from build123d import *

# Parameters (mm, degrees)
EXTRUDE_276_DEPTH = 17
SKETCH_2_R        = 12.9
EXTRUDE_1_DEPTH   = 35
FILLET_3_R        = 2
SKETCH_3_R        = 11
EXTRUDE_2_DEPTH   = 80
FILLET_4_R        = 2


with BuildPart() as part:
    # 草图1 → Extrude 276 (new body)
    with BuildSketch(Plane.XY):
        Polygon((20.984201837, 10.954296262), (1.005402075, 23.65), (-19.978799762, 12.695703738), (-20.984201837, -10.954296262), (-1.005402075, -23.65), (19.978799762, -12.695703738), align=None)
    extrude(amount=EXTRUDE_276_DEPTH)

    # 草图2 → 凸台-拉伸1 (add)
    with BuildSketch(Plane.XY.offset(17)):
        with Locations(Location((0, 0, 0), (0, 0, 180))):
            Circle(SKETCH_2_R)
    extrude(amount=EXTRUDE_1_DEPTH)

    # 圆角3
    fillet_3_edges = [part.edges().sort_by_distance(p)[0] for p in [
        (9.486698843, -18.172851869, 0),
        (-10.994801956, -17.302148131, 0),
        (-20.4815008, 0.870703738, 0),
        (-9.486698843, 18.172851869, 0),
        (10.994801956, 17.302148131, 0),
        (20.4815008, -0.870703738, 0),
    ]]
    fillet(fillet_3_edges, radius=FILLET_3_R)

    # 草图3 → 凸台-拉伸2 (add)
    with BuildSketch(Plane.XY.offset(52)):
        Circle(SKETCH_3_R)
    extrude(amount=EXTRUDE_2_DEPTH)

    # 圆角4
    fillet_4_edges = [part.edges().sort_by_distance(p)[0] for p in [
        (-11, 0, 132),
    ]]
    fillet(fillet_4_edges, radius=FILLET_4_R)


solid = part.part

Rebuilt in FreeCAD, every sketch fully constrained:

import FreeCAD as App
import Part
import Sketcher


def edges_at(feature, points):
    """Names of the edges that pass closest to the given points."""
    edges = feature.Shape.Edges
    near = lambda p: min(range(len(edges)), key=lambda i: edges[i].distToShape(Part.Vertex(*p))[0])
    return sorted({f"Edge{near(p) + 1}" for p in points})


def add_polygon(sketch, points):
    """Adds a closed chain of lines whose ends are joined by coincident constraints."""
    first, n = sketch.GeometryCount, len(points)
    for a, b in zip(points, points[1:] + points[:1]):
        sketch.addGeometry(Part.LineSegment(App.Vector(*a, 0), App.Vector(*b, 0)), False)
    for i in range(n):
        sketch.addConstraint(Sketcher.Constraint("Coincident", first + i, 2, first + (i + 1) % n, 1))

doc = App.newDocument("Part")
body = doc.addObject("PartDesign::Body", "Body")

sketch1 = doc.addObject("Sketcher::SketchObject", "Sketch")
body.addObject(sketch1)
sketch1.AttachmentSupport = (doc.XY_Plane, [""])
sketch1.MapMode = "FlatFace"
add_polygon(sketch1, [(21, 11), (1, 24), (-20, 13), (-21, -11), (-1, -24), (20, -13)])
sketch1.addConstraint(Sketcher.Constraint("Symmetric", 0, 2, 3, 2, -1, 1))
sketch1.addConstraint(Sketcher.Constraint("Symmetric", 1, 2, 4, 2, -1, 1))
sketch1.addConstraint(Sketcher.Constraint("Symmetric", 2, 2, 5, 2, -1, 1))
sketch1.addConstraint(Sketcher.Constraint("Equal", 0, 1))
sketch1.addConstraint(Sketcher.Constraint("Equal", 1, 2))
sketch1.addConstraint(Sketcher.Constraint("DistanceY", 3, 2, 0, 2, 47.3))
sketch1.addConstraint(Sketcher.Constraint("DistanceY", 2, 2, 1, 2, 23.65))
sketch1.addConstraint(Sketcher.Constraint("DistanceX", 2, 2, 4, 2, 40.963002))
sketch1.addConstraint(Sketcher.Constraint("DistanceX", 1, 2, -1, 1, 19.9788))
pad1 = doc.addObject("PartDesign::Pad", "Pad")
body.addObject(pad1)
pad1.Profile = sketch1
pad1.Length = 17

sketch2 = doc.addObject("Sketcher::SketchObject", "Sketch001")
body.addObject(sketch2)
sketch2.AttachmentSupport = (doc.XY_Plane, [""])
sketch2.MapMode = "FlatFace"
sketch2.AttachmentOffset = App.Placement(App.Vector(0, 0, 17), App.Rotation())
sketch2.addGeometry(Part.Circle(App.Vector(0, 0, 0), App.Vector(0, 0, 1), 13), False)
sketch2.addConstraint(Sketcher.Constraint("Coincident", 0, 3, -1, 1))
sketch2.addConstraint(Sketcher.Constraint("Diameter", 0, 25.8))
pad2 = doc.addObject("PartDesign::Pad", "Pad001")
body.addObject(pad2)
pad2.Profile = sketch2
pad2.Length = 35
doc.recompute()

fillet = doc.addObject("PartDesign::Fillet", "Fillet")
body.addObject(fillet)
fillet.Base = (pad2, edges_at(pad2, [
    (9.487, -18.173, 0),
    (-10.995, -17.302, 0),
    (-20.482, 0.871, 0),
    (-9.487, 18.173, 0),
    (10.995, 17.302, 0),
    (20.482, -0.871, 0),
]))
fillet.Radius = 2

sketch3 = doc.addObject("Sketcher::SketchObject", "Sketch002")
body.addObject(sketch3)
sketch3.AttachmentSupport = (doc.XY_Plane, [""])
sketch3.MapMode = "FlatFace"
sketch3.AttachmentOffset = App.Placement(App.Vector(0, 0, 52), App.Rotation())
sketch3.addGeometry(Part.Circle(App.Vector(0, 0, 0), App.Vector(0, 0, 1), 11), False)
sketch3.addConstraint(Sketcher.Constraint("Coincident", 0, 3, -1, 1))
sketch3.addConstraint(Sketcher.Constraint("Diameter", 0, 22.0))
pad3 = doc.addObject("PartDesign::Pad", "Pad002")
body.addObject(pad3)
pad3.Profile = sketch3
pad3.Length = 80
doc.recompute()

fillet2 = doc.addObject("PartDesign::Fillet", "Fillet001")
body.addObject(fillet2)
fillet2.Base = (pad3, edges_at(pad3, [(-11, 0, 132)]))
fillet2.Radius = 2

doc.recompute()
